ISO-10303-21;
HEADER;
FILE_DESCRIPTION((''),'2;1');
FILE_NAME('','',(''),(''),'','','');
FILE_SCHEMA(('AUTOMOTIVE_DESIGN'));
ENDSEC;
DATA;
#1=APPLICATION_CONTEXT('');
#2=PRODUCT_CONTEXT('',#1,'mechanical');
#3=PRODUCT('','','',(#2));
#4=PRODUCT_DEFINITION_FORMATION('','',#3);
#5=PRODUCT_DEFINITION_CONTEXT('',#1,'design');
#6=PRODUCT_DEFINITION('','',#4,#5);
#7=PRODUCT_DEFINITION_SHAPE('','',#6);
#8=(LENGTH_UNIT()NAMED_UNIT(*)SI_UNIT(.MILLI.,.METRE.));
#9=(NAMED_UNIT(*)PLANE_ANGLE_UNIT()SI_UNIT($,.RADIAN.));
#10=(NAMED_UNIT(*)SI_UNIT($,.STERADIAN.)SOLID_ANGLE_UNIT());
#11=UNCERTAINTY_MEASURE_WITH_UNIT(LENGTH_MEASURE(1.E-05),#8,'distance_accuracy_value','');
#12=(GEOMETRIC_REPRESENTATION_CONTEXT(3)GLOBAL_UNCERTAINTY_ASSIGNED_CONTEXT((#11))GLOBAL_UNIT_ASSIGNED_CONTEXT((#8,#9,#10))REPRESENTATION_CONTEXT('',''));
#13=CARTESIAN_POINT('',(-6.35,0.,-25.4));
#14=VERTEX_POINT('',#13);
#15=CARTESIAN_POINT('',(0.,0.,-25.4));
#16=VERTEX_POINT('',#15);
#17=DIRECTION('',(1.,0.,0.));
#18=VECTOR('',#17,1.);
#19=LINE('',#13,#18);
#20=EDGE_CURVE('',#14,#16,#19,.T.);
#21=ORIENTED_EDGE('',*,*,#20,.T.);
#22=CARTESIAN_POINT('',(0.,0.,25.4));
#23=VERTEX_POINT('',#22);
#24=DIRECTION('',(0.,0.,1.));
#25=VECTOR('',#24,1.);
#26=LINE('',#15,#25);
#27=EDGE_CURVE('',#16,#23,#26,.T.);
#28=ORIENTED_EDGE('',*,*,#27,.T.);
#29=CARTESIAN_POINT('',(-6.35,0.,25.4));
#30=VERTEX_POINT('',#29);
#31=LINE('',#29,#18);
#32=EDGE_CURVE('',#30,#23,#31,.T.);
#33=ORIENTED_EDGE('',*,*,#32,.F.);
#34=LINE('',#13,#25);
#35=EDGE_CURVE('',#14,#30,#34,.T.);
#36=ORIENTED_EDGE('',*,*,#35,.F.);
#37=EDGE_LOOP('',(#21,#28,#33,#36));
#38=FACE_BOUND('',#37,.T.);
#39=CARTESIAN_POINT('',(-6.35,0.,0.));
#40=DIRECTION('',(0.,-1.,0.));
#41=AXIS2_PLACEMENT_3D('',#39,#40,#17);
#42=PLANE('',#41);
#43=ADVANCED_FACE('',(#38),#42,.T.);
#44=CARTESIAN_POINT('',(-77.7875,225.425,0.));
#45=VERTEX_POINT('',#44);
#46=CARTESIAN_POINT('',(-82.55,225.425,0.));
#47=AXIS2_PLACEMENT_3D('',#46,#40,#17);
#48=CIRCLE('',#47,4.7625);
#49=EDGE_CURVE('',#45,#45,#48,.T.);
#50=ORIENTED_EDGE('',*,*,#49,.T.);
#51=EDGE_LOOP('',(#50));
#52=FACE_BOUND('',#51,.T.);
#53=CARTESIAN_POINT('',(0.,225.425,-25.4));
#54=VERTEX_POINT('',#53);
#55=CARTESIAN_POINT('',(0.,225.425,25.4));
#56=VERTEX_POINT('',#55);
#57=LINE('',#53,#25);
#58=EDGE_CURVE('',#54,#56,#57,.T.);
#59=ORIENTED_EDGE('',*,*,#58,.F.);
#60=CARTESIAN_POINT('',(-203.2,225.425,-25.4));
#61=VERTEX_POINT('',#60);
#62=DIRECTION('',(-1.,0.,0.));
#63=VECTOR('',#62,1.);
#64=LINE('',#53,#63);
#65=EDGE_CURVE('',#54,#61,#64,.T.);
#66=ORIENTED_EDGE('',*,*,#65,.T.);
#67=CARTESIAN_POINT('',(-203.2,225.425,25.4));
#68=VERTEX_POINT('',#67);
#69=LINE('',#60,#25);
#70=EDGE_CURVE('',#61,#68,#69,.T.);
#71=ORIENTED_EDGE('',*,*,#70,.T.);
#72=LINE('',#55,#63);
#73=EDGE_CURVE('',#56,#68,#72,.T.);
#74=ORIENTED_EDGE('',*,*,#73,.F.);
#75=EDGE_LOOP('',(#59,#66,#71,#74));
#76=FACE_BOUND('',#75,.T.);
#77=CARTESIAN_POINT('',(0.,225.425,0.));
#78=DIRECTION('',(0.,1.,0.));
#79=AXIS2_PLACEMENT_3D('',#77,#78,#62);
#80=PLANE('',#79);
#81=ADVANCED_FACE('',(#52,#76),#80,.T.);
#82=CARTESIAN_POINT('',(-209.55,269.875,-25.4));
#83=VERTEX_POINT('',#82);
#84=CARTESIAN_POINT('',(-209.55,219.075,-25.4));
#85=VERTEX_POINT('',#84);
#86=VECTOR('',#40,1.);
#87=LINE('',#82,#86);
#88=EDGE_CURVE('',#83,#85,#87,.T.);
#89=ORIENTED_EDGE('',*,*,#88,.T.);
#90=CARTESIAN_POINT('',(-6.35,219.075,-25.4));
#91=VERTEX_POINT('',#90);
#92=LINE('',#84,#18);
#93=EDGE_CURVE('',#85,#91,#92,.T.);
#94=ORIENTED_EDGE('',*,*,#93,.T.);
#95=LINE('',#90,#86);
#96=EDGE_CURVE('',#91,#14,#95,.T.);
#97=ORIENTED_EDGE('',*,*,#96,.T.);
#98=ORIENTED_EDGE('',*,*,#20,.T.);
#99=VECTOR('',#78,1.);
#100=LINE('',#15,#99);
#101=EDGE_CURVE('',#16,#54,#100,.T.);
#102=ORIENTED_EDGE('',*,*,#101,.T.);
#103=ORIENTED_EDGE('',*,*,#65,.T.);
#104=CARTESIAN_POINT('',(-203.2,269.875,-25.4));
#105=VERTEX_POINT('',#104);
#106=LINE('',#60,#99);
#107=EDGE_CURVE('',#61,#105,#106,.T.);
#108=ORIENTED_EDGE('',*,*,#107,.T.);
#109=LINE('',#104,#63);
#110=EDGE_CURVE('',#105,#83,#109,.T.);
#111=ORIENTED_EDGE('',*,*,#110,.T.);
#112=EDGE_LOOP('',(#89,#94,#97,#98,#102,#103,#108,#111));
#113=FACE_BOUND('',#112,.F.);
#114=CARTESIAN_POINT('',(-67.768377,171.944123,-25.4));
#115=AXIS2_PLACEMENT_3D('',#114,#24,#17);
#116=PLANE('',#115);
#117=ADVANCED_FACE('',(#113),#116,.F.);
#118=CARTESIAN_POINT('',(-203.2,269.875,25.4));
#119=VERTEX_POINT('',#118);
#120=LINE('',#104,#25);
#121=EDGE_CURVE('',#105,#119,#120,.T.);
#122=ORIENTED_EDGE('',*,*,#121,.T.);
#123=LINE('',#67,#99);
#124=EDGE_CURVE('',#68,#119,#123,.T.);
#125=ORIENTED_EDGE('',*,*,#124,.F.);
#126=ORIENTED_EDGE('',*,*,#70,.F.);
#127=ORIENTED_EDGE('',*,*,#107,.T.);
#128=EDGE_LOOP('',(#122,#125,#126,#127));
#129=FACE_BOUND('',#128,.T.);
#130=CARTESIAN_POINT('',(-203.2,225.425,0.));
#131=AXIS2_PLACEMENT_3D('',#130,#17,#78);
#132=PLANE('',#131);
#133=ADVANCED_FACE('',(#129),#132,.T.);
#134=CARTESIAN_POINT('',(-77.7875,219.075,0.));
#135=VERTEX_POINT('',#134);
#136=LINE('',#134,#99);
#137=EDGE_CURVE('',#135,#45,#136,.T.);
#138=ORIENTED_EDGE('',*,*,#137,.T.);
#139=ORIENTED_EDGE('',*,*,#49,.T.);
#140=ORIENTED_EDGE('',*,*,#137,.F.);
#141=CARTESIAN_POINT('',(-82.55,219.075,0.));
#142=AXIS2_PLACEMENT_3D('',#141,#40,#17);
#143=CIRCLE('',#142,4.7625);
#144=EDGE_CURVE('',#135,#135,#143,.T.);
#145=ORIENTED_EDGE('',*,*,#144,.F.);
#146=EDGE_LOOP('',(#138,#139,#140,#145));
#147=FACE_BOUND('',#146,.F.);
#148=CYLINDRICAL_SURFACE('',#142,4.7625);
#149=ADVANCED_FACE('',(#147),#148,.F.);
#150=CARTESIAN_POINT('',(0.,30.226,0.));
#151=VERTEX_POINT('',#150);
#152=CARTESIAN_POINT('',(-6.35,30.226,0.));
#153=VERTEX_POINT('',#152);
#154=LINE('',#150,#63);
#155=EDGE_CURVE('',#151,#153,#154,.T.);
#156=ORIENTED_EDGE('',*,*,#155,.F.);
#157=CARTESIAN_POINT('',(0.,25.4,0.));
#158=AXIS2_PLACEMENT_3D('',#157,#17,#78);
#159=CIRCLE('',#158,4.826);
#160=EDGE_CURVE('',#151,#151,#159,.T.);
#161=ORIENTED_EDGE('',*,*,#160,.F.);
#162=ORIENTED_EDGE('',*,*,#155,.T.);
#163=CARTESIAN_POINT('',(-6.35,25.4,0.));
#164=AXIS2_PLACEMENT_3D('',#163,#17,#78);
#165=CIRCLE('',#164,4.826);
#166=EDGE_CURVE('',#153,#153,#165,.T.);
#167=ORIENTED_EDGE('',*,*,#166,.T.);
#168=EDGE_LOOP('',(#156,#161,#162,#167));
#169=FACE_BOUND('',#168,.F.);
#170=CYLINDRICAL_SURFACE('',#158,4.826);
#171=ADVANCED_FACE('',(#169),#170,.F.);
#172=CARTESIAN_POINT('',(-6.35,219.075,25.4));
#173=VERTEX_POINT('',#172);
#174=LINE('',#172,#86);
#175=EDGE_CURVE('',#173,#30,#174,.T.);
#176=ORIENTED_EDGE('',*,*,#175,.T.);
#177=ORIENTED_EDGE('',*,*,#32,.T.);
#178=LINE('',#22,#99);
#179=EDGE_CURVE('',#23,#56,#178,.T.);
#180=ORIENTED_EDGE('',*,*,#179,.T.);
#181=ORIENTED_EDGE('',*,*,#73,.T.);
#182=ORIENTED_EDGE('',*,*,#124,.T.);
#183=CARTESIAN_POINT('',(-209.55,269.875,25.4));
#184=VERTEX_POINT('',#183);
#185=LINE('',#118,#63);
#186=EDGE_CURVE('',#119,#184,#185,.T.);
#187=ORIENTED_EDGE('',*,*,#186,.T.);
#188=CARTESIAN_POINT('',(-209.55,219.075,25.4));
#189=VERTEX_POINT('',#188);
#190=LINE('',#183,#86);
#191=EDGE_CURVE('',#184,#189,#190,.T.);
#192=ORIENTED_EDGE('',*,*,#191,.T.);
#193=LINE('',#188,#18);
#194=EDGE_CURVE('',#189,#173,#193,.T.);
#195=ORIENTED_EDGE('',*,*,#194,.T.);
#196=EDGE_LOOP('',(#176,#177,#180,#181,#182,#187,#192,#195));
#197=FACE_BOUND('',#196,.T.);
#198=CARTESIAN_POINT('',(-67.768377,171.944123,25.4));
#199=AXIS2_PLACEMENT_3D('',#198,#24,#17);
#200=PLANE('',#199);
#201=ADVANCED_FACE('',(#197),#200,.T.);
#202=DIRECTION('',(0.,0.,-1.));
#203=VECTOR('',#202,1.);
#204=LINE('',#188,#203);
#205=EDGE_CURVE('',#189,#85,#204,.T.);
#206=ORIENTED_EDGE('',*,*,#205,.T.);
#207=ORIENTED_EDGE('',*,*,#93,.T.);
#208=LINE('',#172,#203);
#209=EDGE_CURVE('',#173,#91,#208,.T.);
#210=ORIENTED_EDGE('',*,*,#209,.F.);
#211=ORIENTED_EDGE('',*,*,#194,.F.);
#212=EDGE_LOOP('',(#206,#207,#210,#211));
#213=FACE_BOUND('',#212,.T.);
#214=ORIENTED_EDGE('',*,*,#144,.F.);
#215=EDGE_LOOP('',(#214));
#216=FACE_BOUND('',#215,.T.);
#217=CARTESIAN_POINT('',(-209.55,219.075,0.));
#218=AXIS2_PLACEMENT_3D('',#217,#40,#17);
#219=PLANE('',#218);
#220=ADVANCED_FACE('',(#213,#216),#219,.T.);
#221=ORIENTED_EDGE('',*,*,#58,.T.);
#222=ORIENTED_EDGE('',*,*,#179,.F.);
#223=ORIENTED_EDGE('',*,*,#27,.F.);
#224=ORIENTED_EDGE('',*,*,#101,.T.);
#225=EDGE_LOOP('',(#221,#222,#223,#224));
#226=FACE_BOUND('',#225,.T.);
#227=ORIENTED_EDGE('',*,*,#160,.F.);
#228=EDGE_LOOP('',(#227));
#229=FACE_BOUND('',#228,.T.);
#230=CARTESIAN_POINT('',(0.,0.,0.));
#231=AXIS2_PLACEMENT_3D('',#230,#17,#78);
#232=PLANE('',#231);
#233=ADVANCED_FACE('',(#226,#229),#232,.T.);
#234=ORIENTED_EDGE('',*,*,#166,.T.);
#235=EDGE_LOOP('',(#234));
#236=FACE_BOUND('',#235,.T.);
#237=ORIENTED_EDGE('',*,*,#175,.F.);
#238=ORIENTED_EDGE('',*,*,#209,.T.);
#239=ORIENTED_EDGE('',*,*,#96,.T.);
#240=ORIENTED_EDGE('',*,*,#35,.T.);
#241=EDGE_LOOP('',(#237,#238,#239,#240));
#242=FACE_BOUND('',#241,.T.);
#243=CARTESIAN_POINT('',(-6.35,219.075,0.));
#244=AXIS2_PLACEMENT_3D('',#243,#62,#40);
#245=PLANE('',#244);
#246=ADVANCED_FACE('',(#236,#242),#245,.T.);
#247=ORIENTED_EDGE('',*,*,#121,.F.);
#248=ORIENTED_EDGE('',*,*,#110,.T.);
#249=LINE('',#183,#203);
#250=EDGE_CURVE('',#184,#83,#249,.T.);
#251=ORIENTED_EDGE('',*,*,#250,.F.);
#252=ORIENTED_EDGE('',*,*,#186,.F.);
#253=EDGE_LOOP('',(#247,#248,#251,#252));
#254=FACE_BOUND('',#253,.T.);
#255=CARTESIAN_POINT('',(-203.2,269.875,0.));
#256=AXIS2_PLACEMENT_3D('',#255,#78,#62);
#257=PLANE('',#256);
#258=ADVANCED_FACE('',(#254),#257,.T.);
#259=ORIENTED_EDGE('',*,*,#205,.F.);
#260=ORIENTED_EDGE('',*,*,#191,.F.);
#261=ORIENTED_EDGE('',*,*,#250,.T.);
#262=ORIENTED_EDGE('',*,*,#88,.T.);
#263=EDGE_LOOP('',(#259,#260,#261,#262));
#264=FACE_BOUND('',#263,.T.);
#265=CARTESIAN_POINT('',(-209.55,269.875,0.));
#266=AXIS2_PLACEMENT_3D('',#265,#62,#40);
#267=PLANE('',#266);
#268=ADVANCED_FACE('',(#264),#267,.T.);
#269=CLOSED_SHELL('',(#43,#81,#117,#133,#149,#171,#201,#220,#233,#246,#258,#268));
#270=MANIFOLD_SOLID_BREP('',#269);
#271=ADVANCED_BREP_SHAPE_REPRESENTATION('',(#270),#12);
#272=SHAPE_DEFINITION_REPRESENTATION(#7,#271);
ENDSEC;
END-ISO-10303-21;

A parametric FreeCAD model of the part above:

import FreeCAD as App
import Part
import Sketcher
from FreeCAD import Vector
Q = App.Units.Quantity

doc = App.newDocument("Part")
body = doc.addObject("PartDesign::Body", "Body")

sketch1 = body.newObject("Sketcher::SketchObject", "Sketch")
sketch1.AttachmentSupport = (doc.getObject("XY_Plane"), [""])
sketch1.MapMode = "FlatFace"
sketch1.addGeometry([
    Part.LineSegment(Vector(-6.35, 219.075, 0), Vector(-6.35, 0, 0)),
    Part.LineSegment(Vector(-6.35, 0, 0), Vector(0, 0, 0)),
    Part.LineSegment(Vector(0, 0, 0), Vector(0, 225.425, 0)),
    Part.LineSegment(Vector(0, 225.425, 0), Vector(-203.2, 225.425, 0)),
    Part.LineSegment(Vector(-203.2, 225.425, 0), Vector(-203.2, 269.875, 0)),
    Part.LineSegment(Vector(-203.2, 269.875, 0), Vector(-209.55, 269.875, 0)),
    Part.LineSegment(Vector(-209.55, 269.875, 0), Vector(-209.55, 219.075, 0)),
    Part.LineSegment(Vector(-209.55, 219.075, 0), Vector(-6.35, 219.075, 0)),
], False)
sketch1.addConstraint([
    Sketcher.Constraint("Coincident", 0, 2, 1, 1),
    Sketcher.Constraint("Coincident", 1, 2, 2, 1),
    Sketcher.Constraint("Coincident", 2, 2, 3, 1),
    Sketcher.Constraint("Coincident", 3, 2, 4, 1),
    Sketcher.Constraint("Coincident", 4, 2, 5, 1),
    Sketcher.Constraint("Coincident", 5, 2, 6, 1),
    Sketcher.Constraint("Coincident", 6, 2, 7, 1),
    Sketcher.Constraint("Coincident", 7, 2, 0, 1),
    Sketcher.Constraint("Vertical", 0),
    Sketcher.Constraint("Horizontal", 1),
    Sketcher.Constraint("Vertical", 2),
    Sketcher.Constraint("Horizontal", 3),
    Sketcher.Constraint("Vertical", 4),
    Sketcher.Constraint("Horizontal", 5),
    Sketcher.Constraint("Vertical", 6),
    Sketcher.Constraint("Horizontal", 7),
    Sketcher.Constraint("Coincident", 1, 2, -1, 1),
    Sketcher.Constraint("Equal", 1, 5),
    Sketcher.Constraint("DistanceX", 3, 2, 3, 1, Q("8 in")),
    Sketcher.Constraint("DistanceY", 6, 2, 6, 1, Q("2 in")),
    Sketcher.Constraint("DistanceX", 1, 1, 1, 2, Q("0.25 in")),
    Sketcher.Constraint("DistanceY", 4, 1, 4, 2, Q("1.75 in")),
    Sketcher.Constraint("DistanceY", 0, 2, 0, 1, Q("8.625 in")),
])
pad1 = body.newObject("PartDesign::Pad", "Pad")
pad1.Profile = sketch1
pad1.Length = Q("2 in")
pad1.Midplane = True

sketch2 = body.newObject("Sketcher::SketchObject", "Sketch001")
sketch2.AttachmentSupport = (doc.getObject("XZ_Plane"), [""])
sketch2.MapMode = "FlatFace"
sketch2.AttachmentOffset = App.Placement(Vector(0, 0, -8.625 * 25.4), App.Rotation())
sketch2.addGeometry(Part.Circle(Vector(-82.55, 0, 0), Vector(0, 0, 1), 4.7625), False)
sketch2.addConstraint([
    Sketcher.Constraint("PointOnObject", 0, 3, -1),
    Sketcher.Constraint("Diameter", 0, Q("0.375 in")),
    Sketcher.Constraint("DistanceX", 0, 3, -1, 1, Q("3.25 in")),
])
pocket1 = body.newObject("PartDesign::Pocket", "Pocket")
pocket1.Profile = sketch2
pocket1.Type = "ThroughAll"

sketch3 = body.newObject("Sketcher::SketchObject", "Sketch002")
sketch3.AttachmentSupport = (doc.getObject("YZ_Plane"), [""])
sketch3.MapMode = "FlatFace"
sketch3.addGeometry(Part.Circle(Vector(25.4, 0, 0), Vector(0, 0, 1), 4.826), False)
sketch3.addConstraint([
    Sketcher.Constraint("PointOnObject", 0, 3, -1),
    Sketcher.Constraint("Diameter", 0, Q("0.38 in")),
    Sketcher.Constraint("DistanceX", -1, 1, 0, 3, Q("1 in")),
])
pocket2 = body.newObject("PartDesign::Pocket", "Pocket001")
pocket2.Profile = sketch3
pocket2.Type = "ThroughAll"

doc.recompute()
